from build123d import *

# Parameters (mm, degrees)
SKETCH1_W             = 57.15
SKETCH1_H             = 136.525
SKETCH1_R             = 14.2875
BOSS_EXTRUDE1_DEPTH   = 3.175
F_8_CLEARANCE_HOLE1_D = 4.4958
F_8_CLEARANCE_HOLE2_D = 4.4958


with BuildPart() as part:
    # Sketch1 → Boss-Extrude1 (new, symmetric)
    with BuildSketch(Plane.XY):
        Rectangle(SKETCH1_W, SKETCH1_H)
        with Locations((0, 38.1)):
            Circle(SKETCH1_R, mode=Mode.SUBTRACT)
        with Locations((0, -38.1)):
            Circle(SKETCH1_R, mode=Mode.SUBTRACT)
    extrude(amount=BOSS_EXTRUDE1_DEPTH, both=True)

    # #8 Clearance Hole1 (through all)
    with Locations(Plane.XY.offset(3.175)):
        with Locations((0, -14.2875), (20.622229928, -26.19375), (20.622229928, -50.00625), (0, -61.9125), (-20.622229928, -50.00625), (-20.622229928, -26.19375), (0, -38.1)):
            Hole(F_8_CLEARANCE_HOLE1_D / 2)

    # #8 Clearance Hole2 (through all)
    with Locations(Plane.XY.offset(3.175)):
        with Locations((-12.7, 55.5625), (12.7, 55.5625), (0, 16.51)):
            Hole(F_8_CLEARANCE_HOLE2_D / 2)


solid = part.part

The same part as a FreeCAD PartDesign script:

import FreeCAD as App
import Part
import Sketcher
from FreeCAD import Vector
Q = App.Units.Quantity

doc = App.newDocument("Part")
body = doc.addObject("PartDesign::Body", "Body")

sketch1 = body.newObject("Sketcher::SketchObject", "Sketch")
sketch1.AttachmentSupport = (doc.getObject("XY_Plane"), [""])
sketch1.MapMode = "FlatFace"
sketch1.addGeometry([
    Part.LineSegment(Vector(-29, 68, 0), Vector(-29, -68, 0)),
    Part.LineSegment(Vector(-29, -68, 0), Vector(29, -68, 0)),
    Part.LineSegment(Vector(29, -68, 0), Vector(29, 68, 0)),
    Part.LineSegment(Vector(29, 68, 0), Vector(-29, 68, 0)),
    Part.Circle(Vector(0, -38, 0), Vector(0, 0, 1), 14),
    Part.Circle(Vector(0, 38, 0), Vector(0, 0, 1), 14),
], False)
sketch1.addConstraint([
    Sketcher.Constraint("Coincident", 0, 2, 1, 1),
    Sketcher.Constraint("Coincident", 1, 2, 2, 1),
    Sketcher.Constraint("Coincident", 2, 2, 3, 1),
    Sketcher.Constraint("Coincident", 3, 2, 0, 1),
    Sketcher.Constraint("Vertical", 0),
    Sketcher.Constraint("Horizontal", 1),
    Sketcher.Constraint("Vertical", 2),
    Sketcher.Constraint("Horizontal", 3),
    Sketcher.Constraint("Equal", 4, 5),
    Sketcher.Constraint("Symmetric", 4, 3, 5, 3, -1, 1),
    Sketcher.Constraint("Symmetric", 0, 2, 2, 2, -1, 1),
    Sketcher.Constraint("PointOnObject", 4, 3, -2),
    Sketcher.Constraint("Diameter", 4, Q("1.125 in")),
    Sketcher.Constraint("DistanceY", 4, 3, 5, 3, Q("3 in")),
    Sketcher.Constraint("DistanceX", 1, 1, 1, 2, Q("2.25 in")),
    Sketcher.Constraint("DistanceY", 0, 2, 0, 1, Q("5.375 in")),
])
pad1 = body.newObject("PartDesign::Pad", "Pad")
pad1.Profile = sketch1
pad1.Length = Q("0.25 in")
pad1.Midplane = True

sketch2 = body.newObject("Sketcher::SketchObject", "Sketch001")
sketch2.AttachmentSupport = (doc.getObject("XY_Plane"), [""])
sketch2.MapMode = "FlatFace"
sketch2.AttachmentOffset = App.Placement(Vector(0, 0, 0.125 * 25.4), App.Rotation())
sketch2.addGeometry([
    Part.Circle(Vector(0, -14.3, 0), Vector(0, 0, 1), 2.2),
    Part.Circle(Vector(20.6, -26.2, 0), Vector(0, 0, 1), 2.2),
    Part.Circle(Vector(20.6, -50, 0), Vector(0, 0, 1), 2.2),
    Part.Circle(Vector(0, -61.9, 0), Vector(0, 0, 1), 2.2),
    Part.Circle(Vector(-20.6, -50, 0), Vector(0, 0, 1), 2.2),
    Part.Circle(Vector(-20.6, -26.2, 0), Vector(0, 0, 1), 2.2),
    Part.Circle(Vector(0, -38.1, 0), Vector(0, 0, 1), 2.2),
], False)
sketch2.addConstraint([
    Sketcher.Constraint("Equal", 0, 1),
    Sketcher.Constraint("Equal", 1, 2),
    Sketcher.Constraint("Equal", 2, 3),
    Sketcher.Constraint("Equal", 3, 4),
    Sketcher.Constraint("Equal", 4, 5),
    Sketcher.Constraint("Equal", 5, 6),
    Sketcher.Constraint("Symmetric", 2, 3, 4, 3, -2),
    Sketcher.Constraint("Symmetric", 1, 3, 5, 3, -2),
    Sketcher.Constraint("PointOnObject", 0, 3, -2),
    Sketcher.Constraint("PointOnObject", 3, 3, -2),
    Sketcher.Constraint("PointOnObject", 6, 3, -2),
    Sketcher.Constraint("Vertical", 1, 3, 2, 3),
    Sketcher.Constraint("Diameter", 0, Q("0.177 in")),
    Sketcher.Constraint("DistanceY", 6, 3, -1, 1, Q("1.5 in")),
    Sketcher.Constraint("DistanceY", 0, 3, -1, 1, Q("0.5625 in")),
    Sketcher.Constraint("DistanceY", 1, 3, -1, 1, Q("1.03125 in")),
    Sketcher.Constraint("DistanceY", 2, 3, -1, 1, Q("1.96875 in")),
    Sketcher.Constraint("DistanceY", 3, 3, -1, 1, Q("2.4375 in")),
    Sketcher.Constraint("DistanceX", -1, 1, 1, 3, Q("20.62223 mm")),
])
doc.recompute()
hole = body.newObject("PartDesign::Hole", "Hole")
hole.Profile = sketch2
hole.ThreadType = "None"
hole.Diameter = Q("0.177 in")
hole.DepthType = "ThroughAll"

sketch3 = body.newObject("Sketcher::SketchObject", "Sketch002")
sketch3.AttachmentSupport = (doc.getObject("XY_Plane"), [""])
sketch3.MapMode = "FlatFace"
sketch3.AttachmentOffset = App.Placement(Vector(0, 0, 0.125 * 25.4), App.Rotation())
sketch3.addGeometry([
    Part.Circle(Vector(-12.7, 55.6, 0), Vector(0, 0, 1), 2.2),
    Part.Circle(Vector(12.7, 55.6, 0), Vector(0, 0, 1), 2.2),
    Part.Circle(Vector(0, 16.5, 0), Vector(0, 0, 1), 2.2),
], False)
sketch3.addConstraint([
    Sketcher.Constraint("Equal", 0, 1),
    Sketcher.Constraint("Equal", 1, 2),
    Sketcher.Constraint("Symmetric", 0, 3, 1, 3, -2),
    Sketcher.Constraint("PointOnObject", 2, 3, -2),
    Sketcher.Constraint("Diameter", 0, Q("0.177 in")),
    Sketcher.Constraint("DistanceX", 0, 3, 1, 3, Q("1 in")),
    Sketcher.Constraint("DistanceY", -1, 1, 2, 3, Q("0.65 in")),
    Sketcher.Constraint("DistanceY", -1, 1, 0, 3, Q("2.1875 in")),
])
doc.recompute()
hole2 = body.newObject("PartDesign::Hole", "Hole001")
hole2.Profile = sketch3
hole2.ThreadType = "None"
hole2.Diameter = Q("0.177 in")
hole2.DepthType = "ThroughAll"

doc.recompute()
